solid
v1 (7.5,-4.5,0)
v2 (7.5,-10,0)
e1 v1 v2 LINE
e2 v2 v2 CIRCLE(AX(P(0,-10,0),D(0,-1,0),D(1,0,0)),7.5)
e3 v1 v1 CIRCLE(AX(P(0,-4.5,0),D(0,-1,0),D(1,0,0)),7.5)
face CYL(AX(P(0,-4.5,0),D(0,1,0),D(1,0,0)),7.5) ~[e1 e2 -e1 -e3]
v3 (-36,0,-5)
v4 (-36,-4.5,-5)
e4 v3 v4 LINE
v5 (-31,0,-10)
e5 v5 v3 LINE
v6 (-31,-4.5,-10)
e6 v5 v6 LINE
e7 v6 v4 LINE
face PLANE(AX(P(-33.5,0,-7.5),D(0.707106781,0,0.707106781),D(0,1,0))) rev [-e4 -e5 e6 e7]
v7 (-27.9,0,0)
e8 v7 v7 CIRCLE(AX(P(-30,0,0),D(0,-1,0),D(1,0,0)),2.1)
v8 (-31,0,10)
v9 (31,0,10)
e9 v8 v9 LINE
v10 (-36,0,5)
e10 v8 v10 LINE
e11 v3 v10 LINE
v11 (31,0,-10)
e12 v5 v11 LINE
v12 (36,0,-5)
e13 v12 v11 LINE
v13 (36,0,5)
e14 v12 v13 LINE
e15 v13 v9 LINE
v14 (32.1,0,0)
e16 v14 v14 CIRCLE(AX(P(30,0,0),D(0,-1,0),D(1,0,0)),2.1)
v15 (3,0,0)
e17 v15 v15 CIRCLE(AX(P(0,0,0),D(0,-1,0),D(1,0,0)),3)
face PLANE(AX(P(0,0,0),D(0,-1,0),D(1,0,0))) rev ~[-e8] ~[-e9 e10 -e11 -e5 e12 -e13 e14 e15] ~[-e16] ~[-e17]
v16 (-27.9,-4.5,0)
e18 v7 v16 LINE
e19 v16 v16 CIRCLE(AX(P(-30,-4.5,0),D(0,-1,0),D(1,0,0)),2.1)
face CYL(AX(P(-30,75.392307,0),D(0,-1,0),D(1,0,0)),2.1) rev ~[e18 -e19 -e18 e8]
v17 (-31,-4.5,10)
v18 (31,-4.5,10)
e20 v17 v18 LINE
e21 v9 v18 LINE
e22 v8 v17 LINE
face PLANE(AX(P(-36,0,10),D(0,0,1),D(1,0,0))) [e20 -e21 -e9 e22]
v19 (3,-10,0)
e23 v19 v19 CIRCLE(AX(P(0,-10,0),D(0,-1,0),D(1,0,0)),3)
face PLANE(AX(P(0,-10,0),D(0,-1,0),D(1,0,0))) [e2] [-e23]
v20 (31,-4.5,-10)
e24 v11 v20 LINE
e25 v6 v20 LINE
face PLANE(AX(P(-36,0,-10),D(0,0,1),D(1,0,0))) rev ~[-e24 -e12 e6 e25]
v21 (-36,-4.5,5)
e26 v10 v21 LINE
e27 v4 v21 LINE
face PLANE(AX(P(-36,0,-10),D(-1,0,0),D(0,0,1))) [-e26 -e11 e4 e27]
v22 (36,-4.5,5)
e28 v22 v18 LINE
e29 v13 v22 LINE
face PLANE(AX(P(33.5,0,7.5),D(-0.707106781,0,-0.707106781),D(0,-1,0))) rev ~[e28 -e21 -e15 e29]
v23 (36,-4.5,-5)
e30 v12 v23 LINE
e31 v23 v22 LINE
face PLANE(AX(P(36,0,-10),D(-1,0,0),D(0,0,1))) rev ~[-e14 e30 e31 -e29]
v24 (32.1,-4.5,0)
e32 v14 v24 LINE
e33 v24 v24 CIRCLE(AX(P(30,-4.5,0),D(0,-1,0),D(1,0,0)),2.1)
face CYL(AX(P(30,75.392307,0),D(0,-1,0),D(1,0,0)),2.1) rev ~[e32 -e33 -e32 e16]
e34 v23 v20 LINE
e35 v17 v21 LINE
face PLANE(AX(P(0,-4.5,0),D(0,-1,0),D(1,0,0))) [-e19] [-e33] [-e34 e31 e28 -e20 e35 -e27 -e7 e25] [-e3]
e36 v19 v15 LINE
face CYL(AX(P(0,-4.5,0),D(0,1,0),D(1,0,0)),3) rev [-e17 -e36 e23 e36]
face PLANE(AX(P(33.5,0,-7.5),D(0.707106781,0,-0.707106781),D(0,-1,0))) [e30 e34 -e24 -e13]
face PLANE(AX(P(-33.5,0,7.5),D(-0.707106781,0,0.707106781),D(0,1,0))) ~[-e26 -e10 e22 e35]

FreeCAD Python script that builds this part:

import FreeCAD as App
import Part
import Sketcher


def edges_at(feature, points):
    """Names of the edges that pass closest to the given points."""
    edges = feature.Shape.Edges
    near = lambda p: min(range(len(edges)), key=lambda i: edges[i].distToShape(Part.Vertex(*p))[0])
    return sorted({f"Edge{near(p) + 1}" for p in points})


def add_polygon(sketch, points):
    """Adds a closed chain of lines whose ends are joined by coincident constraints."""
    first, n = sketch.GeometryCount, len(points)
    for a, b in zip(points, points[1:] + points[:1]):
        sketch.addGeometry(Part.LineSegment(App.Vector(*a, 0), App.Vector(*b, 0)), False)
    for i in range(n):
        sketch.addConstraint(Sketcher.Constraint("Coincident", first + i, 2, first + (i + 1) % n, 1))

doc = App.newDocument("Part")
body = doc.addObject("PartDesign::Body", "Body")

# Sketch on XZ plane
sketch1 = body.newObject("Sketcher::SketchObject", "Sketch")
sketch1.AttachmentSupport = (doc.getObject("XZ_Plane"), [""])
sketch1.MapMode = "FlatFace"
add_polygon(sketch1, [(-36, 10), (-36, -10), (36, -10), (36, 10)])  # lines 0-3
sketch1.addGeometry(Part.Circle(App.Vector(0, 0, 0), App.Vector(0, 0, 1), 3), False)  # 4
sketch1.addConstraint([
    Sketcher.Constraint("Vertical", 0),
    Sketcher.Constraint("Horizontal", 1),
    Sketcher.Constraint("Vertical", 2),
    Sketcher.Constraint("Horizontal", 3),
    Sketcher.Constraint("Coincident", 4, 3, -1, 1),
    Sketcher.Constraint("Symmetric", 0, 2, 2, 2, -1, 1),
    Sketcher.Constraint("Diameter", 4, 6.0),
    Sketcher.Constraint("DistanceX", 1, 1, 1, 2, 72.0),
    Sketcher.Constraint("DistanceY", 0, 2, 0, 1, 20.0),
])
pad1 = body.newObject("PartDesign::Pad", "Pad")
pad1.Profile = sketch1
pad1.Length = 4.5

# Sketch on XZ plane
sketch2 = body.newObject("Sketcher::SketchObject", "Sketch001")
sketch2.AttachmentSupport = (doc.getObject("XZ_Plane"), [""])
sketch2.MapMode = "FlatFace"
sketch2.AttachmentOffset = App.Placement(App.Vector(0, 0, 4.5), App.Rotation())
sketch2.addGeometry([
    Part.Circle(App.Vector(0, 0, 0), App.Vector(0, 0, 1), 7.5),
    Part.Circle(App.Vector(0, 0, 0), App.Vector(0, 0, 1), 3),
], False)
sketch2.addConstraint([
    Sketcher.Constraint("Coincident", 0, 3, -1, 1),
    Sketcher.Constraint("Coincident", 1, 3, -1, 1),
    Sketcher.Constraint("Diameter", 0, 15.0),
    Sketcher.Constraint("Diameter", 1, 6.0),
])
pad2 = body.newObject("PartDesign::Pad", "Pad001")
pad2.Profile = sketch2
pad2.Length = 5.5
doc.recompute()

chamfer = body.newObject("PartDesign::Chamfer", "Chamfer")
chamfer.Base = (pad2, edges_at(pad2, [
    (36, -2.25, 10),
    (36, -2.25, -10),
    (-36, -2.25, 10),
    (-36, -2.25, -10),
]))
chamfer.Size = 5

# Sketch on XZ plane
sketch3 = body.newObject("Sketcher::SketchObject", "Sketch002")
sketch3.AttachmentSupport = (doc.getObject("XZ_Plane"), [""])
sketch3.MapMode = "FlatFace"
sketch3.addGeometry([
    Part.Circle(App.Vector(30, 0, 0), App.Vector(0, 0, 1), 2.1),
    Part.Circle(App.Vector(-30, 0, 0), App.Vector(0, 0, 1), 2.1),
], False)
sketch3.addConstraint([
    Sketcher.Constraint("Equal", 0, 1),
    Sketcher.Constraint("Symmetric", 0, 3, 1, 3, -1, 1),
    Sketcher.Constraint("PointOnObject", 0, 3, -1),
    Sketcher.Constraint("Diameter", 0, 4.2),
    Sketcher.Constraint("DistanceX", -1, 1, 0, 3, 30.0),
])
doc.recompute()
hole = body.newObject("PartDesign::Hole", "Hole")
hole.Profile = sketch3
hole.ThreadType = "None"
hole.Diameter = 4.2
hole.DepthType = "ThroughAll"
hole.Reversed = True

doc.recompute()
